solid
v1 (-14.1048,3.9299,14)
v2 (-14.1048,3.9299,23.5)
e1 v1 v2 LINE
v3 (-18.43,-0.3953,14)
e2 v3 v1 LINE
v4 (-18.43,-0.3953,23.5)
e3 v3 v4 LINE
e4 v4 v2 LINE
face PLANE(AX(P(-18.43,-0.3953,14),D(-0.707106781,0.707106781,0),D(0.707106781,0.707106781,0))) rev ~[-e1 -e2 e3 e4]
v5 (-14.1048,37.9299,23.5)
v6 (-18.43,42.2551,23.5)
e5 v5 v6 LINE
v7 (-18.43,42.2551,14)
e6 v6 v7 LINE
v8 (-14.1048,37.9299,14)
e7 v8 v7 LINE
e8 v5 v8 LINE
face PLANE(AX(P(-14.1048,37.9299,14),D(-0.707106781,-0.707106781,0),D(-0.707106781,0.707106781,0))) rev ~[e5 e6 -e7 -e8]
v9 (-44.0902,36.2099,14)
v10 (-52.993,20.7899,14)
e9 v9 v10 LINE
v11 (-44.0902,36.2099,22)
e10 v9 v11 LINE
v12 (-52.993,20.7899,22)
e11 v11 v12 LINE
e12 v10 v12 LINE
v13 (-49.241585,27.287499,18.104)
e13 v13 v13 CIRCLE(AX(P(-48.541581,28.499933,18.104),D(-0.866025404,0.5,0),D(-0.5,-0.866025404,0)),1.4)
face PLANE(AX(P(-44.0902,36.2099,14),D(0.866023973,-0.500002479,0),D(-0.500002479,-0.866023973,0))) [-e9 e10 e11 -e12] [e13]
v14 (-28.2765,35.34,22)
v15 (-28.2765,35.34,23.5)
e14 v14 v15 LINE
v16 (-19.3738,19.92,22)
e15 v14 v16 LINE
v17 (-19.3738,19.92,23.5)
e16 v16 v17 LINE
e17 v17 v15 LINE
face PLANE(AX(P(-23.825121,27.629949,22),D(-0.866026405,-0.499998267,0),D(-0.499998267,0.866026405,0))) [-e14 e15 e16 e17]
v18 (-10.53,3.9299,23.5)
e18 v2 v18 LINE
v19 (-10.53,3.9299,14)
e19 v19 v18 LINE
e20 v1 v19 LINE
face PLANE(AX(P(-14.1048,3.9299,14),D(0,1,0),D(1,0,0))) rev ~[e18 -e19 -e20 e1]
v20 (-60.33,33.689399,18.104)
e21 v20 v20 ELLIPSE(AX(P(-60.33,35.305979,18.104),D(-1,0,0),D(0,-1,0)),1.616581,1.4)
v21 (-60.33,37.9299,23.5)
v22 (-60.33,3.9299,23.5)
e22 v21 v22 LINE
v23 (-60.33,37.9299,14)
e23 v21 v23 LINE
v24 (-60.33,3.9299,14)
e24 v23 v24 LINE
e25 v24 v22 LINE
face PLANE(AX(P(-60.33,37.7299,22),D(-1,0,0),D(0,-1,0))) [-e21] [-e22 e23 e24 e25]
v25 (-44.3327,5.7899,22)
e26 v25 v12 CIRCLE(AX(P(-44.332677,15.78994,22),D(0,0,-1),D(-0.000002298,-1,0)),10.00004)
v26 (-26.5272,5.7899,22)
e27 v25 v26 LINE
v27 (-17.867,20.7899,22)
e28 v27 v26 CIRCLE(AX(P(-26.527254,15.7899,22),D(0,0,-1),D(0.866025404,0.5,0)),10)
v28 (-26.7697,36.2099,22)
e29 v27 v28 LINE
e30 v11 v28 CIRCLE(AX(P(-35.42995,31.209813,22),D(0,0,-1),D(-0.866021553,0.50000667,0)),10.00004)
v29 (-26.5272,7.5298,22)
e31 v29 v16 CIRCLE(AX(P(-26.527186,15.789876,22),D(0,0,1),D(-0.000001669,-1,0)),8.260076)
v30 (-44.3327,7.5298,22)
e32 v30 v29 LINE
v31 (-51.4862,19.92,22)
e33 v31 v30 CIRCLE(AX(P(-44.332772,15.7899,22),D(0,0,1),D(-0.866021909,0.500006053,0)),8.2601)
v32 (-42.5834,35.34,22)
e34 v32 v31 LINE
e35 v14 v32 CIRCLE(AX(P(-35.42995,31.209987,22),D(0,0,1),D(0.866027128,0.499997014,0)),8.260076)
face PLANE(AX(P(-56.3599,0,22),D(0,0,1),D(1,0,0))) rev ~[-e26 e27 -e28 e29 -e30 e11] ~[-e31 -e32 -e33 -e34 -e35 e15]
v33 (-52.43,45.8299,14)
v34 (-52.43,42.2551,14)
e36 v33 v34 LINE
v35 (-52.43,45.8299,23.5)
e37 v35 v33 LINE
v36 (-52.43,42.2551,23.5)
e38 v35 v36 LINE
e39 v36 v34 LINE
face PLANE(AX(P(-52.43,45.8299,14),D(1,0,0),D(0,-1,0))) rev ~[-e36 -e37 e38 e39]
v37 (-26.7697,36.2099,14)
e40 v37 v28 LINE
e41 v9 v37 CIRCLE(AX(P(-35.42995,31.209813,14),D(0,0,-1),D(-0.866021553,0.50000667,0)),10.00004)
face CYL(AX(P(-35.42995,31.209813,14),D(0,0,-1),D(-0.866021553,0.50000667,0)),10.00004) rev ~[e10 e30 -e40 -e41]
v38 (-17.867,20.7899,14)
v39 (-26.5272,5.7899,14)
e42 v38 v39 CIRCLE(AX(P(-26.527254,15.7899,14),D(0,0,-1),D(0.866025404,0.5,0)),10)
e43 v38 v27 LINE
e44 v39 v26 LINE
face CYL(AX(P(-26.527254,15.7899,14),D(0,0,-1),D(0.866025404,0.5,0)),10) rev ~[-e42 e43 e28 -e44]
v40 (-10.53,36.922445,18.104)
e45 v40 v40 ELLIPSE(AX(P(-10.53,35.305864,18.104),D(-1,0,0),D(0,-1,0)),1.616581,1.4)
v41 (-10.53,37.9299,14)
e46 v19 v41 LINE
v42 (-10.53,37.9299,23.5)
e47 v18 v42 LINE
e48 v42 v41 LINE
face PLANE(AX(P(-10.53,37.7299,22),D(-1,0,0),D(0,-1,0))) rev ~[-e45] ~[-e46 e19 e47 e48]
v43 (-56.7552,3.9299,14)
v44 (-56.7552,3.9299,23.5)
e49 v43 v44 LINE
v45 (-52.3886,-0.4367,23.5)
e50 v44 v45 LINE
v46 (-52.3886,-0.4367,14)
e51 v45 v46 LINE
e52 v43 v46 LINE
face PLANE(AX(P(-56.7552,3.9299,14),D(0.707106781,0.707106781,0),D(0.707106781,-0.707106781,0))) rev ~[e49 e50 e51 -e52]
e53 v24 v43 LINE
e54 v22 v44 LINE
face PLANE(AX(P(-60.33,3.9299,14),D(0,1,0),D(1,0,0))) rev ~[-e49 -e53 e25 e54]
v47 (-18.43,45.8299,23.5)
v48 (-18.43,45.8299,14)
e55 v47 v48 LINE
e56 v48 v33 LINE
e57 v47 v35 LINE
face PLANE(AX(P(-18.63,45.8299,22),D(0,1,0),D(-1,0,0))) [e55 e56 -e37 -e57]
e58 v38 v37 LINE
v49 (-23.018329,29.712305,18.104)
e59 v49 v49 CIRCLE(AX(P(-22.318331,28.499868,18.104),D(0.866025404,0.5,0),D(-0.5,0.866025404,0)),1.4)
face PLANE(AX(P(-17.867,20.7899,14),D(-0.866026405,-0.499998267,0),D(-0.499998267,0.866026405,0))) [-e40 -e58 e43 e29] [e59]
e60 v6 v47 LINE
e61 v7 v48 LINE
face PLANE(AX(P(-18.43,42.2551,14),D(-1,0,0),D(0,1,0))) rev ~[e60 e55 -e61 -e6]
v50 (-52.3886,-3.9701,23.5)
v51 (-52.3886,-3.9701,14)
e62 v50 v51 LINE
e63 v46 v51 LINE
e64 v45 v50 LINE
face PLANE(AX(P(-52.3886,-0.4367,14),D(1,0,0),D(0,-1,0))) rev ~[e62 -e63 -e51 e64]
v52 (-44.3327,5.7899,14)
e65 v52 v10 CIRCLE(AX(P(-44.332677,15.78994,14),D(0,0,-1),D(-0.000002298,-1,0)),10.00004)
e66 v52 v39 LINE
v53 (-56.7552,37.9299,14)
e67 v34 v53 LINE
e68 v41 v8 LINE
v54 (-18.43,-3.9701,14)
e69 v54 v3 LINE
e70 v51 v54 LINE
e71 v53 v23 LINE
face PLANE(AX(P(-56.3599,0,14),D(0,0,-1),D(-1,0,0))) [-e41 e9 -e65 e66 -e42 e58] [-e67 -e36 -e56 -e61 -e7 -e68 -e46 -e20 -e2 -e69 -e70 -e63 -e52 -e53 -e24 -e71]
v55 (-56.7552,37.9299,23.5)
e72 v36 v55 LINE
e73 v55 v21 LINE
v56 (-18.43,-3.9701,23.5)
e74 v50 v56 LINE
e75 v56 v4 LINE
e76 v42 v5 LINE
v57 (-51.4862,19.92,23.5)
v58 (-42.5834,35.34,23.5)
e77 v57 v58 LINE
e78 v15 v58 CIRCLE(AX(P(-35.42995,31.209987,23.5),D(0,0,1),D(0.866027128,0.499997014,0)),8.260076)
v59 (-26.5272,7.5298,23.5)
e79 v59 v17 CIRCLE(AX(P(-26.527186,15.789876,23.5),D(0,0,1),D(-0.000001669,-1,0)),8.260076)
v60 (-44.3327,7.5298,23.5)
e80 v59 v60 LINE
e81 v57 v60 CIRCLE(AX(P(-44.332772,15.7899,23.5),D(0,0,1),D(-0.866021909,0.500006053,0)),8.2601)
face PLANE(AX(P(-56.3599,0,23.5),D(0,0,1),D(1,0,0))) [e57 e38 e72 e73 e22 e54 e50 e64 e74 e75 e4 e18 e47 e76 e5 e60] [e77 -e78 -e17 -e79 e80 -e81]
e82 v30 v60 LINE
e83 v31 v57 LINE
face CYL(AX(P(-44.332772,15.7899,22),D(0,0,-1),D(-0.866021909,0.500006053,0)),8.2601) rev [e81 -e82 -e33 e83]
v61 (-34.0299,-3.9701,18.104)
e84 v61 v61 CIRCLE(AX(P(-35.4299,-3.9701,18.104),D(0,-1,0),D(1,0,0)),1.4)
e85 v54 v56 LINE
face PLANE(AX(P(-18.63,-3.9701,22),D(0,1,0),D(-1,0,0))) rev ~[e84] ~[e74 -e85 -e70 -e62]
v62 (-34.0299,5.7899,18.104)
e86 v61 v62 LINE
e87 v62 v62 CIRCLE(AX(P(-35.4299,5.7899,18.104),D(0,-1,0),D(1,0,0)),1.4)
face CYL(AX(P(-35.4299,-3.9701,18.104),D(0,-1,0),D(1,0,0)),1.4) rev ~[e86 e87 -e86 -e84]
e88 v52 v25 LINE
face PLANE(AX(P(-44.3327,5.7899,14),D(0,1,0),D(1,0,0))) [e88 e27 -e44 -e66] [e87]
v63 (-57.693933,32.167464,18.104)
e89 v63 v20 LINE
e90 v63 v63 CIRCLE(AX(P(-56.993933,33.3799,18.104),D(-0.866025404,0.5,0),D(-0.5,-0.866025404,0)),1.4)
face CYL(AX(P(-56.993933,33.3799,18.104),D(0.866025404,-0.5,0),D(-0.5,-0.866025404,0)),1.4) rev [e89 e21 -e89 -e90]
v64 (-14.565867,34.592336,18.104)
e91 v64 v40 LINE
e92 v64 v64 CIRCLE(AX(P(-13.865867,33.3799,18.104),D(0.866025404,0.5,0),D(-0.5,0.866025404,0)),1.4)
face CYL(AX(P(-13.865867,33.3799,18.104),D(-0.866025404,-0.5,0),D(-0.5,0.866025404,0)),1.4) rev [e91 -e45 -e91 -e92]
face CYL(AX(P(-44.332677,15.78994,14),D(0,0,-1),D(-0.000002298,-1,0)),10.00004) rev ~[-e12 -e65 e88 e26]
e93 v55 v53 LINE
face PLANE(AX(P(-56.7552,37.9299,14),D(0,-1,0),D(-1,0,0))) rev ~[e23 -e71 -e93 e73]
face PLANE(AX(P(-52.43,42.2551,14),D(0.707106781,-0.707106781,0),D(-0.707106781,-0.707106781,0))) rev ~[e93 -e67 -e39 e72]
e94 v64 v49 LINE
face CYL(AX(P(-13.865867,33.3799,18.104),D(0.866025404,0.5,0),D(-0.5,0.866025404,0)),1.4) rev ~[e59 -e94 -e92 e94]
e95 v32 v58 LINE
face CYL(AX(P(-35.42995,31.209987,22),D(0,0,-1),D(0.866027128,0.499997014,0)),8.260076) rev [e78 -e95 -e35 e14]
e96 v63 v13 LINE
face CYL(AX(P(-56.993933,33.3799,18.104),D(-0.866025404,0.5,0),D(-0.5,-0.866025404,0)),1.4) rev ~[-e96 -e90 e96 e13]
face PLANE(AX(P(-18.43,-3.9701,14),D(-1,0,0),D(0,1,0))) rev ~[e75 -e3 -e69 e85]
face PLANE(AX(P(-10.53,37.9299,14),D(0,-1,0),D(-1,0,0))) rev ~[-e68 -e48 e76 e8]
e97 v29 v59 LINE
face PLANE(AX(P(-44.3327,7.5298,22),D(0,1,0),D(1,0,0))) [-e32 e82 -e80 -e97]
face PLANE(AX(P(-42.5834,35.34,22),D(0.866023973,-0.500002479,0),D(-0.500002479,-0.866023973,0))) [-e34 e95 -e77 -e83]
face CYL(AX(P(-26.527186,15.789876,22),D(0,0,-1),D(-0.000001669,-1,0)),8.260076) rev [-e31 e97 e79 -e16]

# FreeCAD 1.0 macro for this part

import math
import FreeCAD as App
import Part
import Sketcher
from FreeCAD import Vector
Q = App.Units.Quantity

doc = App.newDocument("Part")
params = doc.addObject("Spreadsheet::Sheet", "Params")
for row, (alias, value) in enumerate([
    ("sketch1_width", "33.6 mm"),
    ("pad1_length", "8 mm"),
    ("sketch2_width", "0.2 mm"),
    ("pad2_length", "8 mm"),
    ("sketch3_radius", "10 mm"),
    ("pocket1_length", "10 mm"),
    ("sketch4_width", "34 mm"),
    ("sketch4_radius", "8.26 mm"),
    ("pad3_length", "1.5 mm"),
    ("sketch5_diameter", "2.8 mm"),
    ("pocket2_length", "30 mm"),
], start=1):
    params.set(f"A{row}", alias)
    params.set(f"B{row}", "=" + value)
    params.setAlias(f"B{row}", alias)

body = doc.addObject("PartDesign::Body", "Body")

sketch1 = body.newObject("Sketcher::SketchObject", "Sketch")
sketch1.AttachmentSupport = (doc.getObject("XY_Plane"), [""])
sketch1.MapMode = "FlatFace"
sketch1.AttachmentOffset = App.Placement(Vector(0, 0, 22), App.Rotation())
sketch1.addGeometry(Part.LineSegment(Vector(-52.189, -0.354, 0), Vector(-56.672, 4.13, 0)), False)
sketch1.addGeometry(Part.LineSegment(Vector(-56.672, 4.13, 0), Vector(-60.33, 4.13, 0)), False)
sketch1.addGeometry(Part.LineSegment(Vector(-60.33, 4.13, 0), Vector(-60.33, 37.73, 0)), False)
sketch1.addGeometry(Part.LineSegment(Vector(-60.33, 37.73, 0), Vector(-56.672, 37.73, 0)), False)
sketch1.addGeometry(Part.LineSegment(Vector(-56.672, 37.73, 0), Vector(-52.23, 42.172, 0)), False)
sketch1.addGeometry(Part.LineSegment(Vector(-52.23, 42.172, 0), Vector(-52.23, 45.83, 0)), False)
sketch1.addGeometry(Part.LineSegment(Vector(-52.23, 45.83, 0), Vector(-18.63, 45.83, 0)), False)
sketch1.addGeometry(Part.LineSegment(Vector(-18.63, 45.83, 0), Vector(-18.63, 42.172, 0)), False)
sketch1.addGeometry(Part.LineSegment(Vector(-18.63, 42.172, 0), Vector(-14.188, 37.73, 0)), False)
sketch1.addGeometry(Part.LineSegment(Vector(-14.188, 37.73, 0), Vector(-10.53, 37.73, 0)), False)
sketch1.addGeometry(Part.LineSegment(Vector(-10.53, 37.73, 0), Vector(-10.53, 4.13, 0)), False)
sketch1.addGeometry(Part.LineSegment(Vector(-10.53, 4.13, 0), Vector(-14.188, 4.13, 0)), False)
sketch1.addGeometry(Part.LineSegment(Vector(-14.188, 4.13, 0), Vector(-18.671, -0.354, 0)), False)
sketch1.addGeometry(Part.LineSegment(Vector(-18.671, -0.354, 0), Vector(-18.63, -0.354, 0)), False)
sketch1.addGeometry(Part.LineSegment(Vector(-18.63, -0.354, 0), Vector(-18.63, -3.97, 0)), False)
sketch1.addGeometry(Part.LineSegment(Vector(-18.63, -3.97, 0), Vector(-52.189, -3.97, 0)), False)
sketch1.addGeometry(Part.LineSegment(Vector(-52.189, -3.97, 0), Vector(-52.189, -0.354, 0)), False)
sketch1.addConstraint(Sketcher.Constraint("Coincident", 0, 2, 1, 1))
sketch1.addConstraint(Sketcher.Constraint("Coincident", 1, 2, 2, 1))
sketch1.addConstraint(Sketcher.Constraint("Coincident", 2, 2, 3, 1))
sketch1.addConstraint(Sketcher.Constraint("Coincident", 3, 2, 4, 1))
sketch1.addConstraint(Sketcher.Constraint("Coincident", 4, 2, 5, 1))
sketch1.addConstraint(Sketcher.Constraint("Coincident", 5, 2, 6, 1))
sketch1.addConstraint(Sketcher.Constraint("Coincident", 6, 2, 7, 1))
sketch1.addConstraint(Sketcher.Constraint("Coincident", 7, 2, 8, 1))
sketch1.addConstraint(Sketcher.Constraint("Coincident", 8, 2, 9, 1))
sketch1.addConstraint(Sketcher.Constraint("Coincident", 9, 2, 10, 1))
sketch1.addConstraint(Sketcher.Constraint("Coincident", 10, 2, 11, 1))
sketch1.addConstraint(Sketcher.Constraint("Coincident", 11, 2, 12, 1))
sketch1.addConstraint(Sketcher.Constraint("Coincident", 12, 2, 13, 1))
sketch1.addConstraint(Sketcher.Constraint("Coincident", 13, 2, 14, 1))
sketch1.addConstraint(Sketcher.Constraint("Coincident", 14, 2, 15, 1))
sketch1.addConstraint(Sketcher.Constraint("Coincident", 15, 2, 16, 1))
sketch1.addConstraint(Sketcher.Constraint("Coincident", 16, 2, 0, 1))
sketch1.addConstraint(Sketcher.Constraint("Horizontal", 1))
sketch1.addConstraint(Sketcher.Constraint("Vertical", 2))
sketch1.addConstraint(Sketcher.Constraint("Horizontal", 3))
sketch1.addConstraint(Sketcher.Constraint("Vertical", 5))
sketch1.addConstraint(Sketcher.Constraint("Horizontal", 6))
sketch1.addConstraint(Sketcher.Constraint("Vertical", 7))
sketch1.addConstraint(Sketcher.Constraint("Horizontal", 9))
sketch1.addConstraint(Sketcher.Constraint("Vertical", 10))
sketch1.addConstraint(Sketcher.Constraint("Horizontal", 11))
sketch1.addConstraint(Sketcher.Constraint("Horizontal", 13))
sketch1.addConstraint(Sketcher.Constraint("Vertical", 14))
sketch1.addConstraint(Sketcher.Constraint("Horizontal", 15))
sketch1.addConstraint(Sketcher.Constraint("Vertical", 16))
sketch1.addConstraint(Sketcher.Constraint("Perpendicular", 0, 4))
sketch1.addConstraint(Sketcher.Constraint("Perpendicular", 4, 8))
sketch1.addConstraint(Sketcher.Constraint("Perpendicular", 8, 12))
sketch1.addConstraint(Sketcher.Constraint("Horizontal", 4, 2, 7, 2))
sketch1.addConstraint(Sketcher.Constraint("Horizontal", 3, 2, 8, 2))
sketch1.addConstraint(Sketcher.Constraint("Horizontal", 1, 2, 10, 2))
sketch1.addConstraint(Sketcher.Constraint("Horizontal", 13, 2, 16, 2))
sketch1.addConstraint(Sketcher.Constraint("Vertical", 0, 2, 3, 2))
sketch1.addConstraint(Sketcher.Constraint("Vertical", 8, 2, 11, 2))
sketch1.addConstraint(Sketcher.Constraint("Vertical", 7, 2, 13, 2))
sketch1.addConstraint(Sketcher.Constraint("Equal", 3, 9))
sketch1.addConstraint(Sketcher.Constraint("Equal", 6, 2))
sketch1.addConstraint(Sketcher.Constraint("Equal", 11, 5))
sketch1.addConstraint(Sketcher.Constraint("Equal", 4, 8))
sketch1.addConstraint(Sketcher.Constraint("DistanceX", 6, 1, 6, 2, 33.6))
sketch1.addConstraint(Sketcher.Constraint("DistanceX", 2, 2, 4, 2, 8.1))
sketch1.addConstraint(Sketcher.Constraint("DistanceY", 14, 2, 11, 2, 8.1))
sketch1.addConstraint(Sketcher.Constraint("DistanceY", -1, 1, 0, 2, 4.13))
sketch1.addConstraint(Sketcher.Constraint("DistanceX", 1, 2, -1, 1, 60.33))
sketch1.addConstraint(Sketcher.Constraint("Distance", 0, 6.341))
sketch1.addConstraint(Sketcher.Constraint("DistanceX", 1, 2, 1, 1, 3.6577))
sketch1.setExpression("Constraints[44]", "Params.sketch1_width")
pad1 = body.newObject("PartDesign::Pad", "Pad")
pad1.Profile = sketch1
pad1.setExpression("Length", "Params.pad1_length")
pad1.Reversed = True

sketch2 = body.newObject("Sketcher::SketchObject", "Sketch001")
sketch2.AttachmentSupport = (doc.getObject("XY_Plane"), [""])
sketch2.MapMode = "FlatFace"
sketch2.AttachmentOffset = App.Placement(Vector(0, 0, 14), App.Rotation())
sketch2.addGeometry(Part.LineSegment(Vector(-60.33, 3.93, 0), Vector(-60.33, 4.13, 0)), False)
sketch2.addGeometry(Part.LineSegment(Vector(-60.33, 4.13, 0), Vector(-56.672, 4.13, 0)), False)
sketch2.addGeometry(Part.LineSegment(Vector(-56.672, 4.13, 0), Vector(-52.189, -0.354, 0)), False)
sketch2.addGeometry(Part.LineSegment(Vector(-52.189, -0.354, 0), Vector(-52.189, -3.97, 0)), False)
sketch2.addGeometry(Part.LineSegment(Vector(-52.189, -3.97, 0), Vector(-52.389, -3.97, 0)), False)
sketch2.addGeometry(Part.LineSegment(Vector(-52.389, -3.97, 0), Vector(-52.389, -0.437, 0)), False)
sketch2.addGeometry(Part.LineSegment(Vector(-52.389, -0.437, 0), Vector(-56.755, 3.93, 0)), False)
sketch2.addGeometry(Part.LineSegment(Vector(-56.755, 3.93, 0), Vector(-60.33, 3.93, 0)), False)
sketch2.addGeometry(Part.LineSegment(Vector(-52.43, 45.83, 0), Vector(-52.23, 45.83, 0)), False)
sketch2.addGeometry(Part.LineSegment(Vector(-52.23, 45.83, 0), Vector(-52.23, 42.172, 0)), False)
sketch2.addGeometry(Part.LineSegment(Vector(-52.23, 42.172, 0), Vector(-56.672, 37.73, 0)), False)
sketch2.addGeometry(Part.LineSegment(Vector(-56.672, 37.73, 0), Vector(-60.33, 37.73, 0)), False)
sketch2.addGeometry(Part.LineSegment(Vector(-60.33, 37.73, 0), Vector(-60.33, 37.93, 0)), False)
sketch2.addGeometry(Part.LineSegment(Vector(-60.33, 37.93, 0), Vector(-56.755, 37.93, 0)), False)
sketch2.addGeometry(Part.LineSegment(Vector(-56.755, 37.93, 0), Vector(-52.43, 42.255, 0)), False)
sketch2.addGeometry(Part.LineSegment(Vector(-52.43, 42.255, 0), Vector(-52.43, 45.83, 0)), False)
sketch2.addGeometry(Part.LineSegment(Vector(-14.188, 37.73, 0), Vector(-18.63, 42.172, 0)), False)
sketch2.addGeometry(Part.LineSegment(Vector(-18.63, 42.172, 0), Vector(-18.63, 45.83, 0)), False)
sketch2.addGeometry(Part.LineSegment(Vector(-18.63, 45.83, 0), Vector(-18.43, 45.83, 0)), False)
sketch2.addGeometry(Part.LineSegment(Vector(-18.43, 45.83, 0), Vector(-18.43, 42.255, 0)), False)
sketch2.addGeometry(Part.LineSegment(Vector(-18.43, 42.255, 0), Vector(-14.105, 37.93, 0)), False)
sketch2.addGeometry(Part.LineSegment(Vector(-14.105, 37.93, 0), Vector(-10.53, 37.93, 0)), False)
sketch2.addGeometry(Part.LineSegment(Vector(-10.53, 37.93, 0), Vector(-10.53, 37.73, 0)), False)
sketch2.addGeometry(Part.LineSegment(Vector(-10.53, 37.73, 0), Vector(-14.188, 37.73, 0)), False)
sketch2.addGeometry(Part.LineSegment(Vector(-14.188, 4.13, 0), Vector(-10.53, 4.13, 0)), False)
sketch2.addGeometry(Part.LineSegment(Vector(-10.53, 4.13, 0), Vector(-10.53, 3.93, 0)), False)
sketch2.addGeometry(Part.LineSegment(Vector(-10.53, 3.93, 0), Vector(-14.105, 3.93, 0)), False)
sketch2.addGeometry(Part.LineSegment(Vector(-14.105, 3.93, 0), Vector(-18.43, -0.395, 0)), False)
sketch2.addGeometry(Part.LineSegment(Vector(-18.43, -0.395, 0), Vector(-18.43, -3.97, 0)), False)
sketch2.addGeometry(Part.LineSegment(Vector(-18.43, -3.97, 0), Vector(-18.63, -3.97, 0)), False)
sketch2.addGeometry(Part.LineSegment(Vector(-18.63, -3.97, 0), Vector(-18.63, -0.354, 0)), False)
sketch2.addGeometry(Part.LineSegment(Vector(-18.63, -0.354, 0), Vector(-18.671, -0.354, 0)), False)
sketch2.addGeometry(Part.LineSegment(Vector(-18.671, -0.354, 0), Vector(-14.188, 4.13, 0)), False)
sketch2.addConstraint(Sketcher.Constraint("Coincident", 0, 2, 1, 1))
sketch2.addConstraint(Sketcher.Constraint("Coincident", 1, 2, 2, 1))
sketch2.addConstraint(Sketcher.Constraint("Coincident", 2, 2, 3, 1))
sketch2.addConstraint(Sketcher.Constraint("Coincident", 3, 2, 4, 1))
sketch2.addConstraint(Sketcher.Constraint("Coincident", 4, 2, 5, 1))
sketch2.addConstraint(Sketcher.Constraint("Coincident", 5, 2, 6, 1))
sketch2.addConstraint(Sketcher.Constraint("Coincident", 6, 2, 7, 1))
sketch2.addConstraint(Sketcher.Constraint("Coincident", 7, 2, 0, 1))
sketch2.addConstraint(Sketcher.Constraint("Coincident", 8, 2, 9, 1))
sketch2.addConstraint(Sketcher.Constraint("Coincident", 9, 2, 10, 1))
sketch2.addConstraint(Sketcher.Constraint("Coincident", 10, 2, 11, 1))
sketch2.addConstraint(Sketcher.Constraint("Coincident", 11, 2, 12, 1))
sketch2.addConstraint(Sketcher.Constraint("Coincident", 12, 2, 13, 1))
sketch2.addConstraint(Sketcher.Constraint("Coincident", 13, 2, 14, 1))
sketch2.addConstraint(Sketcher.Constraint("Coincident", 14, 2, 15, 1))
sketch2.addConstraint(Sketcher.Constraint("Coincident", 15, 2, 8, 1))
sketch2.addConstraint(Sketcher.Constraint("Coincident", 16, 2, 17, 1))
sketch2.addConstraint(Sketcher.Constraint("Coincident", 17, 2, 18, 1))
sketch2.addConstraint(Sketcher.Constraint("Coincident", 18, 2, 19, 1))
sketch2.addConstraint(Sketcher.Constraint("Coincident", 19, 2, 20, 1))
sketch2.addConstraint(Sketcher.Constraint("Coincident", 20, 2, 21, 1))
sketch2.addConstraint(Sketcher.Constraint("Coincident", 21, 2, 22, 1))
sketch2.addConstraint(Sketcher.Constraint("Coincident", 22, 2, 23, 1))
sketch2.addConstraint(Sketcher.Constraint("Coincident", 23, 2, 16, 1))
sketch2.addConstraint(Sketcher.Constraint("Coincident", 24, 2, 25, 1))
sketch2.addConstraint(Sketcher.Constraint("Coincident", 25, 2, 26, 1))
sketch2.addConstraint(Sketcher.Constraint("Coincident", 26, 2, 27, 1))
sketch2.addConstraint(Sketcher.Constraint("Coincident", 27, 2, 28, 1))
sketch2.addConstraint(Sketcher.Constraint("Coincident", 28, 2, 29, 1))
sketch2.addConstraint(Sketcher.Constraint("Coincident", 29, 2, 30, 1))
sketch2.addConstraint(Sketcher.Constraint("Coincident", 30, 2, 31, 1))
sketch2.addConstraint(Sketcher.Constraint("Coincident", 31, 2, 32, 1))
sketch2.addConstraint(Sketcher.Constraint("Coincident", 32, 2, 24, 1))
sketch2.addConstraint(Sketcher.Constraint("Vertical", 0))
sketch2.addConstraint(Sketcher.Constraint("Horizontal", 1))
sketch2.addConstraint(Sketcher.Constraint("Vertical", 3))
sketch2.addConstraint(Sketcher.Constraint("Horizontal", 4))
sketch2.addConstraint(Sketcher.Constraint("Vertical", 5))
sketch2.addConstraint(Sketcher.Constraint("Horizontal", 7))
sketch2.addConstraint(Sketcher.Constraint("Horizontal", 8))
sketch2.addConstraint(Sketcher.Constraint("Vertical", 9))
sketch2.addConstraint(Sketcher.Constraint("Horizontal", 11))
sketch2.addConstraint(Sketcher.Constraint("Vertical", 12))
sketch2.addConstraint(Sketcher.Constraint("Horizontal", 13))
sketch2.addConstraint(Sketcher.Constraint("Vertical", 15))
sketch2.addConstraint(Sketcher.Constraint("Vertical", 17))
sketch2.addConstraint(Sketcher.Constraint("Horizontal", 18))
sketch2.addConstraint(Sketcher.Constraint("Vertical", 19))
sketch2.addConstraint(Sketcher.Constraint("Horizontal", 21))
sketch2.addConstraint(Sketcher.Constraint("Vertical", 22))
sketch2.addConstraint(Sketcher.Constraint("Horizontal", 23))
sketch2.addConstraint(Sketcher.Constraint("Horizontal", 24))
sketch2.addConstraint(Sketcher.Constraint("Vertical", 25))
sketch2.addConstraint(Sketcher.Constraint("Horizontal", 26))
sketch2.addConstraint(Sketcher.Constraint("Vertical", 28))
sketch2.addConstraint(Sketcher.Constraint("Horizontal", 29))
sketch2.addConstraint(Sketcher.Constraint("Vertical", 30))
sketch2.addConstraint(Sketcher.Constraint("Horizontal", 31))
sketch2.addConstraint(Sketcher.Constraint("Parallel", 2, 6))
sketch2.addConstraint(Sketcher.Constraint("Perpendicular", 6, 10))
sketch2.addConstraint(Sketcher.Constraint("Parallel", 10, 14))
sketch2.addConstraint(Sketcher.Constraint("Perpendicular", 14, 16))
sketch2.addConstraint(Sketcher.Constraint("Parallel", 16, 20))
sketch2.addConstraint(Sketcher.Constraint("Perpendicular", 20, 27))
sketch2.addConstraint(Sketcher.Constraint("Parallel", 27, 32))
sketch2.addConstraint(Sketcher.Constraint("Horizontal", 9, 2, 16, 2))
sketch2.addConstraint(Sketcher.Constraint("Horizontal", 15, 2, 17, 2))
sketch2.addConstraint(Sketcher.Constraint("Horizontal", 14, 2, 19, 2))
sketch2.addConstraint(Sketcher.Constraint("Horizontal", 13, 2, 20, 2))
sketch2.addConstraint(Sketcher.Constraint("Horizontal", 11, 2, 22, 2))
sketch2.addConstraint(Sketcher.Constraint("Horizontal", 1, 2, 24, 2))
sketch2.addConstraint(Sketcher.Constraint("Horizontal", 7, 2, 25, 2))
sketch2.addConstraint(Sketcher.Constraint("Horizontal", 4, 2, 28, 2))
sketch2.addConstraint(Sketcher.Constraint("Horizontal", 2, 2, 30, 2))
sketch2.addConstraint(Sketcher.Constraint("Vertical", 1, 2, 10, 2))
sketch2.addConstraint(Sketcher.Constraint("Vertical", 7, 2, 11, 2))
sketch2.addConstraint(Sketcher.Constraint("Vertical", 6, 2, 13, 2))
sketch2.addConstraint(Sketcher.Constraint("Vertical", 22, 2, 24, 2))
sketch2.addConstraint(Sketcher.Constraint("Vertical", 20, 2, 26, 2))
sketch2.addConstraint(Sketcher.Constraint("Vertical", 19, 2, 27, 2))
sketch2.addConstraint(Sketcher.Constraint("Vertical", 17, 2, 29, 2))
sketch2.addConstraint(Sketcher.Constraint("Vertical", 23, 2, 32, 2))
sketch2.addConstraint(Sketcher.Constraint("Equal", 4, 8))
sketch2.addConstraint(Sketcher.Constraint("Equal", 8, 18))
sketch2.addConstraint(Sketcher.Constraint("Equal", 13, 21))
sketch2.addConstraint(Sketcher.Constraint("Equal", 11, 23))
sketch2.addConstraint(Sketcher.Constraint("Equal", 29, 0))
sketch2.addConstraint(Sketcher.Constraint("Equal", 24, 9))
sketch2.addConstraint(Sketcher.Constraint("Equal", 0, 12))
sketch2.addConstraint(Sketcher.Constraint("Equal", 19, 28))
sketch2.addConstraint(Sketcher.Constraint("DistanceX", 4, 2, 4, 1, 0.2))
sketch2.addConstraint(Sketcher.Constraint("DistanceX", 15, 2, 18, 2, 34.0))
sketch2.addConstraint(Sketcher.Constraint("DistanceY", 25, 2, 21, 2, 34.0))
sketch2.addConstraint(Sketcher.Constraint("DistanceY", 3, 2, 1, 2, 8.1))
sketch2.addConstraint(Sketcher.Constraint("DistanceX", 0, 2, -1, 1, 60.33))
sketch2.addConstraint(Sketcher.Constraint("DistanceY", -1, 1, 0, 2, 4.13))
sketch2.addConstraint(Sketcher.Constraint("Distance", 2, 6.341))
sketch2.addConstraint(Sketcher.Constraint("DistanceX", 1, 1, 1, 2, 3.6577))
sketch2.addConstraint(Sketcher.Constraint("DistanceX", 7, 2, 7, 1, 3.5748))
sketch2.setExpression("Constraints[90]", "Params.sketch2_width")
pad2 = body.newObject("PartDesign::Pad", "Pad001")
pad2.Profile = sketch2
pad2.setExpression("Length", "Params.pad2_length")

sketch3 = body.newObject("Sketcher::SketchObject", "Sketch002")
sketch3.AttachmentSupport = (doc.getObject("XY_Plane"), [""])
sketch3.MapMode = "FlatFace"
sketch3.AttachmentOffset = App.Placement(Vector(0, 0, 14), App.Rotation())
sketch3.addGeometry(Part.LineSegment(Vector(-27, 6, 0), Vector(-44, 6, 0)), False)
sketch3.addGeometry(Part.ArcOfCircle(Part.Circle(Vector(-44, 16, 0), Vector(0, 0, 1), 10), math.radians(150), math.radians(270)), False)
sketch3.addGeometry(Part.LineSegment(Vector(-53, 21, 0), Vector(-44, 36, 0)), False)
sketch3.addGeometry(Part.ArcOfCircle(Part.Circle(Vector(-35, 31, 0), Vector(0, 0, 1), 10), math.radians(30), math.radians(150)), False)
sketch3.addGeometry(Part.LineSegment(Vector(-27, 36, 0), Vector(-18, 21, 0)), False)
sketch3.addGeometry(Part.ArcOfCircle(Part.Circle(Vector(-27, 16, 0), Vector(0, 0, 1), 10), math.radians(-90), math.radians(30)), False)
sketch3.addConstraint(Sketcher.Constraint("Tangent", 0, 2, 1, 2))
sketch3.addConstraint(Sketcher.Constraint("Tangent", 1, 1, 2, 1))
sketch3.addConstraint(Sketcher.Constraint("Tangent", 2, 2, 3, 2))
sketch3.addConstraint(Sketcher.Constraint("Tangent", 3, 1, 4, 1))
sketch3.addConstraint(Sketcher.Constraint("Tangent", 4, 2, 5, 2))
sketch3.addConstraint(Sketcher.Constraint("Tangent", 5, 1, 0, 1))
sketch3.addConstraint(Sketcher.Constraint("Horizontal", 0))
sketch3.addConstraint(Sketcher.Constraint("Equal", 1, 3))
sketch3.addConstraint(Sketcher.Constraint("Equal", 3, 5))
sketch3.addConstraint(Sketcher.Constraint("Horizontal", 2, 2, 3, 1))
sketch3.addConstraint(Sketcher.Constraint("Radius", 1, 10.0))
sketch3.addConstraint(Sketcher.Constraint("Angle", 2, Q("59.9998 deg")))
sketch3.addConstraint(Sketcher.Constraint("DistanceY", -1, 1, 1, 3, 15.79))
sketch3.addConstraint(Sketcher.Constraint("DistanceX", 3, 3, -1, 1, 35.43))
sketch3.addConstraint(Sketcher.Constraint("DistanceY", -1, 1, 3, 3, 31.21))
sketch3.setExpression("Constraints[10]", "Params.sketch3_radius")
pocket1 = body.newObject("PartDesign::Pocket", "Pocket")
pocket1.Profile = sketch3
pocket1.setExpression("Length", "Params.pocket1_length")
pocket1.Reversed = True

sketch4 = body.newObject("Sketcher::SketchObject", "Sketch003")
sketch4.AttachmentSupport = (doc.getObject("XY_Plane"), [""])
sketch4.MapMode = "FlatFace"
sketch4.AttachmentOffset = App.Placement(Vector(0, 0, 22), App.Rotation())
sketch4.addGeometry(Part.LineSegment(Vector(-52.4, -0.4, 0), Vector(-52.4, -4, 0)), False)
sketch4.addGeometry(Part.LineSegment(Vector(-52.4, -4, 0), Vector(-18.4, -4, 0)), False)
sketch4.addGeometry(Part.LineSegment(Vector(-18.4, -4, 0), Vector(-18.4, -0.4, 0)), False)
sketch4.addGeometry(Part.LineSegment(Vector(-18.4, -0.4, 0), Vector(-14.1, 3.9, 0)), False)
sketch4.addGeometry(Part.LineSegment(Vector(-14.1, 3.9, 0), Vector(-10.5, 3.9, 0)), False)
sketch4.addGeometry(Part.LineSegment(Vector(-10.5, 3.9, 0), Vector(-10.5, 37.9, 0)), False)
sketch4.addGeometry(Part.LineSegment(Vector(-10.5, 37.9, 0), Vector(-14.1, 37.9, 0)), False)
sketch4.addGeometry(Part.LineSegment(Vector(-14.1, 37.9, 0), Vector(-18.4, 42.3, 0)), False)
sketch4.addGeometry(Part.LineSegment(Vector(-18.4, 42.3, 0), Vector(-18.4, 45.8, 0)), False)
sketch4.addGeometry(Part.LineSegment(Vector(-18.4, 45.8, 0), Vector(-52.4, 45.8, 0)), False)
sketch4.addGeometry(Part.LineSegment(Vector(-52.4, 45.8, 0), Vector(-52.4, 42.3, 0)), False)
sketch4.addGeometry(Part.LineSegment(Vector(-52.4, 42.3, 0), Vector(-56.8, 37.9, 0)), False)
sketch4.addGeometry(Part.LineSegment(Vector(-56.8, 37.9, 0), Vector(-60.3, 37.9, 0)), False)
sketch4.addGeometry(Part.LineSegment(Vector(-60.3, 37.9, 0), Vector(-60.3, 3.9, 0)), False)
sketch4.addGeometry(Part.LineSegment(Vector(-60.3, 3.9, 0), Vector(-56.8, 3.9, 0)), False)
sketch4.addGeometry(Part.LineSegment(Vector(-56.8, 3.9, 0), Vector(-52.4, -0.4, 0)), False)
sketch4.addGeometry(Part.LineSegment(Vector(-28.3, 35.3, 0), Vector(-19.4, 19.9, 0)), False)
sketch4.addGeometry(Part.ArcOfCircle(Part.Circle(Vector(-26.5, 15.8, 0), Vector(0, 0, 1), 8.3), math.radians(-90), math.radians(30)), False)
sketch4.addGeometry(Part.LineSegment(Vector(-26.5, 7.5, 0), Vector(-44.3, 7.5, 0)), False)
sketch4.addGeometry(Part.ArcOfCircle(Part.Circle(Vector(-44.3, 15.8, 0), Vector(0, 0, 1), 8.3), math.radians(150), math.radians(270)), False)
sketch4.addGeometry(Part.LineSegment(Vector(-51.5, 19.9, 0), Vector(-42.6, 35.3, 0)), False)
sketch4.addGeometry(Part.ArcOfCircle(Part.Circle(Vector(-35.4, 31.2, 0), Vector(0, 0, 1), 8.3), math.radians(30), math.radians(150)), False)
sketch4.addConstraint(Sketcher.Constraint("Coincident", 0, 2, 1, 1))
sketch4.addConstraint(Sketcher.Constraint("Coincident", 1, 2, 2, 1))
sketch4.addConstraint(Sketcher.Constraint("Coincident", 2, 2, 3, 1))
sketch4.addConstraint(Sketcher.Constraint("Coincident", 3, 2, 4, 1))
sketch4.addConstraint(Sketcher.Constraint("Coincident", 4, 2, 5, 1))
sketch4.addConstraint(Sketcher.Constraint("Coincident", 5, 2, 6, 1))
sketch4.addConstraint(Sketcher.Constraint("Coincident", 6, 2, 7, 1))
sketch4.addConstraint(Sketcher.Constraint("Coincident", 7, 2, 8, 1))
sketch4.addConstraint(Sketcher.Constraint("Coincident", 8, 2, 9, 1))
sketch4.addConstraint(Sketcher.Constraint("Coincident", 9, 2, 10, 1))
sketch4.addConstraint(Sketcher.Constraint("Coincident", 10, 2, 11, 1))
sketch4.addConstraint(Sketcher.Constraint("Coincident", 11, 2, 12, 1))
sketch4.addConstraint(Sketcher.Constraint("Coincident", 12, 2, 13, 1))
sketch4.addConstraint(Sketcher.Constraint("Coincident", 13, 2, 14, 1))
sketch4.addConstraint(Sketcher.Constraint("Coincident", 14, 2, 15, 1))
sketch4.addConstraint(Sketcher.Constraint("Coincident", 15, 2, 0, 1))
sketch4.addConstraint(Sketcher.Constraint("Tangent", 16, 2, 17, 2))
sketch4.addConstraint(Sketcher.Constraint("Tangent", 17, 1, 18, 1))
sketch4.addConstraint(Sketcher.Constraint("Tangent", 18, 2, 19, 2))
sketch4.addConstraint(Sketcher.Constraint("Tangent", 19, 1, 20, 1))
sketch4.addConstraint(Sketcher.Constraint("Tangent", 20, 2, 21, 2))
sketch4.addConstraint(Sketcher.Constraint("Tangent", 21, 1, 16, 1))
sketch4.addConstraint(Sketcher.Constraint("Vertical", 0))
sketch4.addConstraint(Sketcher.Constraint("Horizontal", 1))
sketch4.addConstraint(Sketcher.Constraint("Vertical", 2))
sketch4.addConstraint(Sketcher.Constraint("Horizontal", 4))
sketch4.addConstraint(Sketcher.Constraint("Vertical", 5))
sketch4.addConstraint(Sketcher.Constraint("Horizontal", 6))
sketch4.addConstraint(Sketcher.Constraint("Vertical", 8))
sketch4.addConstraint(Sketcher.Constraint("Horizontal", 9))
sketch4.addConstraint(Sketcher.Constraint("Vertical", 10))
sketch4.addConstraint(Sketcher.Constraint("Horizontal", 12))
sketch4.addConstraint(Sketcher.Constraint("Vertical", 13))
sketch4.addConstraint(Sketcher.Constraint("Horizontal", 14))
sketch4.addConstraint(Sketcher.Constraint("Horizontal", 18))
sketch4.addConstraint(Sketcher.Constraint("Equal", 17, 19))
sketch4.addConstraint(Sketcher.Constraint("Equal", 19, 21))
sketch4.addConstraint(Sketcher.Constraint("Perpendicular", 3, 7))
sketch4.addConstraint(Sketcher.Constraint("Perpendicular", 7, 11))
sketch4.addConstraint(Sketcher.Constraint("Perpendicular", 11, 15))
sketch4.addConstraint(Sketcher.Constraint("Horizontal", 7, 2, 10, 2))
sketch4.addConstraint(Sketcher.Constraint("Horizontal", 6, 2, 11, 2))
sketch4.addConstraint(Sketcher.Constraint("Horizontal", 4, 2, 13, 2))
sketch4.addConstraint(Sketcher.Constraint("Horizontal", 16, 2, 19, 1))
sketch4.addConstraint(Sketcher.Constraint("Vertical", 3, 2, 6, 2))
sketch4.addConstraint(Sketcher.Constraint("Vertical", 2, 2, 7, 2))
sketch4.addConstraint(Sketcher.Constraint("Vertical", 11, 2, 14, 2))
sketch4.addConstraint(Sketcher.Constraint("Equal", 6, 12))
sketch4.addConstraint(Sketcher.Constraint("Equal", 14, 2))
sketch4.addConstraint(Sketcher.Constraint("Equal", 9, 5))
sketch4.addConstraint(Sketcher.Constraint("Equal", 2, 8))
sketch4.addConstraint(Sketcher.Constraint("Equal", 3, 7))
sketch4.addConstraint(Sketcher.Constraint("DistanceX", 9, 2, 9, 1, 34.0))
sketch4.addConstraint(Sketcher.Constraint("Angle", 16, Q("-60 deg")))
sketch4.addConstraint(Sketcher.Constraint("Radius", 17, 8.26))
sketch4.addConstraint(Sketcher.Constraint("DistanceX", 21, 3, 1, 2, 17.0))
sketch4.addConstraint(Sketcher.Constraint("DistanceY", 1, 2, 3, 2, 7.9))
sketch4.addConstraint(Sketcher.Constraint("DistanceY", 3, 2, 17, 1, 3.6))
sketch4.addConstraint(Sketcher.Constraint("DistanceY", -1, 1, 17, 3, 15.79))
sketch4.addConstraint(Sketcher.Constraint("DistanceX", 21, 3, -1, 1, 35.43))
sketch4.addConstraint(Sketcher.Constraint("DistanceY", -1, 1, 21, 3, 31.21))
sketch4.addConstraint(Sketcher.Constraint("DistanceX", 1, 1, 1, 2, 33.9586))
sketch4.addConstraint(Sketcher.Constraint("DistanceX", 4, 1, 4, 2, 3.5748))
sketch4.setExpression("Constraints[52]", "Params.sketch4_width")
sketch4.setExpression("Constraints[54]", "Params.sketch4_radius")
pad3 = body.newObject("PartDesign::Pad", "Pad002")
pad3.Profile = sketch4
pad3.setExpression("Length", "Params.pad3_length")

sketch5 = body.newObject("Sketcher::SketchObject", "Sketch004")
sketch5.AttachmentSupport = (doc.getObject("XZ_Plane"), [""])
sketch5.MapMode = "FlatFace"
sketch5.AttachmentOffset = App.Placement(Vector(0, 0, 3.9701), App.Rotation())
sketch5.addGeometry(Part.Circle(Vector(-35.4, 18.1, 0), Vector(0, 0, 1), 1.4), False)
sketch5.addConstraint(Sketcher.Constraint("Diameter", 0, 2.8))
sketch5.addConstraint(Sketcher.Constraint("DistanceX", 0, 3, -1, 1, 35.43))
sketch5.addConstraint(Sketcher.Constraint("DistanceY", -1, 1, 0, 3, 18.104))
sketch5.setExpression("Constraints[0]", "Params.sketch5_diameter")
pocket2 = body.newObject("PartDesign::Pocket", "Pocket001")
pocket2.Profile = sketch5
pocket2.setExpression("Length", "Params.pocket2_length")
pocket2.Midplane = True
doc.recompute()

datumline = body.newObject("PartDesign::Line", "DatumLine")
datumline.Placement = App.Placement(Vector(-35.4299, 20.9299, 0), App.Rotation(Vector(0, 0, 1), Vector(0, 0, 1)))
polarpattern = body.newObject("PartDesign::PolarPattern", "PolarPattern")
polarpattern.Originals = [pocket2]
polarpattern.Axis = (datumline, [""])
polarpattern.Angle = 360
polarpattern.Occurrences = 3
body.Tip = polarpattern

doc.recompute()
